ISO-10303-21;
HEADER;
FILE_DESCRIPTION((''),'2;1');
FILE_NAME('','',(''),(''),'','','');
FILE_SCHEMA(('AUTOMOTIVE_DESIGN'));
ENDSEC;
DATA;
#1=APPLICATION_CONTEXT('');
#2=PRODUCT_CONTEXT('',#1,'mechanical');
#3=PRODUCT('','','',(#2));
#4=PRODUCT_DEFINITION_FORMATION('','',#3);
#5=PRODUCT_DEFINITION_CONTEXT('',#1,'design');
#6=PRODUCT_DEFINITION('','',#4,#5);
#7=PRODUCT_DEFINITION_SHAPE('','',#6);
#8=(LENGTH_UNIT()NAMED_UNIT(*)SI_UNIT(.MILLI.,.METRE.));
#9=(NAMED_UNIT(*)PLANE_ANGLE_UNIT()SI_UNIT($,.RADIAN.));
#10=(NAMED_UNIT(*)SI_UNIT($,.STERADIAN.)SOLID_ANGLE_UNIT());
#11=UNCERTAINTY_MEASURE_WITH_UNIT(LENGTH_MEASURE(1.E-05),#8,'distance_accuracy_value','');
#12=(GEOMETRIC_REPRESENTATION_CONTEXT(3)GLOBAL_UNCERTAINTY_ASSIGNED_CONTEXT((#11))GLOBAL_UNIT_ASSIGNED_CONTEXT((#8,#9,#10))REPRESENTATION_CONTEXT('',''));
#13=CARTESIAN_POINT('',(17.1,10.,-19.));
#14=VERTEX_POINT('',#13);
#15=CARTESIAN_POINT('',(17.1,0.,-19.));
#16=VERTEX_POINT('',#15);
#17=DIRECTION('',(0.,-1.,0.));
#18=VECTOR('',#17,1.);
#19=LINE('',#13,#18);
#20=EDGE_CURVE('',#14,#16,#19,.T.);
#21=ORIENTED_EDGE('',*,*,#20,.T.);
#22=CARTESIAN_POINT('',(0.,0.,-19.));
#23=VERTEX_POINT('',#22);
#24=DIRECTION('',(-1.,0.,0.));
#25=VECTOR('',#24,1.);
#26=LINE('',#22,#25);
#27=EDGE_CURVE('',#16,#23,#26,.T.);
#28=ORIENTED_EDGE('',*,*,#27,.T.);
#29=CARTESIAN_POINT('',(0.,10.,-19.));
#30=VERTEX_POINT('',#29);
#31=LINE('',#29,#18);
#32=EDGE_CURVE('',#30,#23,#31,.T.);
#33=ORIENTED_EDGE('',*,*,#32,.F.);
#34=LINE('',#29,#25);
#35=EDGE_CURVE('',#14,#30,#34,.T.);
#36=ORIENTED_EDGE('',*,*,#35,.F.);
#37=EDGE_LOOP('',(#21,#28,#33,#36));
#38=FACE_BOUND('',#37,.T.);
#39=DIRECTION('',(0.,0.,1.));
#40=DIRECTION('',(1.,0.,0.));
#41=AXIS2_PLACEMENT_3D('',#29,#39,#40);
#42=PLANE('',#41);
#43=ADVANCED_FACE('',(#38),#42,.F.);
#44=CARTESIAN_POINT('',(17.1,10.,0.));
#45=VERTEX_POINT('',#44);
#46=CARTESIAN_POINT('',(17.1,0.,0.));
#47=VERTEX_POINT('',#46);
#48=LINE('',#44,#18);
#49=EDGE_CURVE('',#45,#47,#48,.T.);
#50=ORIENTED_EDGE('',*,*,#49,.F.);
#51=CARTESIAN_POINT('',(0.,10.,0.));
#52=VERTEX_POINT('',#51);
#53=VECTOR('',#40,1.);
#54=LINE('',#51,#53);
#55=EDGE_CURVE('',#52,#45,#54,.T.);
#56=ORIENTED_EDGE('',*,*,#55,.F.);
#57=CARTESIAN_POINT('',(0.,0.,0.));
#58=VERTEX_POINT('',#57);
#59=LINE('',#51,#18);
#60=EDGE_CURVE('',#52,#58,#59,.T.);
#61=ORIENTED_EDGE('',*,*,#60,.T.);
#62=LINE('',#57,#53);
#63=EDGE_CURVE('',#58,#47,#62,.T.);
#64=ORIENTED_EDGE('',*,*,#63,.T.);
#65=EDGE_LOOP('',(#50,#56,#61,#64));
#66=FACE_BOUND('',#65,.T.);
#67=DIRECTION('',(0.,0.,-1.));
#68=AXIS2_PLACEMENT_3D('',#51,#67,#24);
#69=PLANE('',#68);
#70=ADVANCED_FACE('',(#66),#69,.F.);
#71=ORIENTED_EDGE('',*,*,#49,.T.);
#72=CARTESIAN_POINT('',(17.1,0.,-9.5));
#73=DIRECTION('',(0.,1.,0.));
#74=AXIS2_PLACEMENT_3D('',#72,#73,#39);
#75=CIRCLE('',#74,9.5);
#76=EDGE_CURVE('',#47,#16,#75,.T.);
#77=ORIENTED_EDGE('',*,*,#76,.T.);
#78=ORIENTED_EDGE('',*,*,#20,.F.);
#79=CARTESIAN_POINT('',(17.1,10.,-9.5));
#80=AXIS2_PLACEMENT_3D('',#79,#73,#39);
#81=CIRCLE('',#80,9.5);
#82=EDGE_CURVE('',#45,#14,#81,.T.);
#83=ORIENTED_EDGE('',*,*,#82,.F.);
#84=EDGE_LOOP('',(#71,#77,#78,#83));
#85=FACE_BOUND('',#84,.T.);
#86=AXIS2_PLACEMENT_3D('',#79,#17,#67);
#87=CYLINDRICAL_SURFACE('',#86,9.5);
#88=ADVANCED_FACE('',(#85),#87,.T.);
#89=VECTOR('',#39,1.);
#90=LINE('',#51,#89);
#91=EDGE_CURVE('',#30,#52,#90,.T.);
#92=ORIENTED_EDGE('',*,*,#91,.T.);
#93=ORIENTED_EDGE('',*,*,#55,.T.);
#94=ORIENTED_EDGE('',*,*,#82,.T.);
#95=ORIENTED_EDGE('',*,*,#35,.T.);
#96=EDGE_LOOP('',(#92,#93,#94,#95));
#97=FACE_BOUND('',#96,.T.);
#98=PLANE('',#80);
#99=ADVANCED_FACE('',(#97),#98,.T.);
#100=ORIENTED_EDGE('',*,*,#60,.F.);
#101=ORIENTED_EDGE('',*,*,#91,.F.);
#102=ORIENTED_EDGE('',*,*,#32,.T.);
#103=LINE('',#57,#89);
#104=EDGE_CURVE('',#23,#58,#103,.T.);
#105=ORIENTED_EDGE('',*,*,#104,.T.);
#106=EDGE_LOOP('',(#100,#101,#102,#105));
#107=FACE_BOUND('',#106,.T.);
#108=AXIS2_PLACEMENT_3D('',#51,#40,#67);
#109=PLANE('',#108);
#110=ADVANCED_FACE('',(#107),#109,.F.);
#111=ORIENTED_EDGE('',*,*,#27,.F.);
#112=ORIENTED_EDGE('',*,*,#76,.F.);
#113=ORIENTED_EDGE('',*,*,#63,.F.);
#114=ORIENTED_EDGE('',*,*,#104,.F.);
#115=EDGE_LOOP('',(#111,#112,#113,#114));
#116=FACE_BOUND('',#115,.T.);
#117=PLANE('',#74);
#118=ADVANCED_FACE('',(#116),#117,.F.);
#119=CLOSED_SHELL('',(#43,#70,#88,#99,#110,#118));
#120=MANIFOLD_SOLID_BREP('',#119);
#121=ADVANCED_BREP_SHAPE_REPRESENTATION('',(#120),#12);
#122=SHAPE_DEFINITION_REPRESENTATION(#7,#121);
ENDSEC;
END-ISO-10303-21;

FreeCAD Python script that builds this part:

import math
import FreeCAD as App
import Part
import Sketcher

V = App.Vector
Q = App.Units.Quantity

doc = App.newDocument("Part")
params = doc.addObject("Spreadsheet::Sheet", "Params")
for row, (alias, value) in enumerate([
    ("sketch1_radius", "9.5 mm"),
    ("sketch1_width", "17.1 mm"),
    ("pad1_length", "10 mm"),
], start=1):
    params.set(f"A{row}", alias)
    params.set(f"B{row}", "=" + value)
    params.setAlias(f"B{row}", alias)

body = doc.addObject("PartDesign::Body", "Body")

sketch1 = body.newObject("Sketcher::SketchObject", "Sketch")
sketch1.AttachmentSupport = (doc.getObject("XZ_Plane"), [""])
sketch1.MapMode = "FlatFace"
sketch1.addGeometry([
    Part.LineSegment(V(0, 0, 0), V(17.1, 0, 0)),
    Part.ArcOfCircle(Part.Circle(V(17.1, -9.5, 0), V(0, 0, 1), 9.5), math.radians(-90), math.radians(90)),
    Part.LineSegment(V(17.1, -19, 0), V(0, -19, 0)),
    Part.LineSegment(V(0, -19, 0), V(0, 0, 0)),
], False)
sketch1.addConstraint([
    Sketcher.Constraint("Tangent", 0, 2, 1, 2),
    Sketcher.Constraint("Tangent", 1, 1, 2, 1),
    Sketcher.Constraint("Coincident", 2, 2, 3, 1),
    Sketcher.Constraint("Coincident", 3, 2, 0, 1),
    Sketcher.Constraint("Horizontal", 0),
    Sketcher.Constraint("Horizontal", 2),
    Sketcher.Constraint("Vertical", 3),
    Sketcher.Constraint("Coincident", 3, 2, -1, 1),
    Sketcher.Constraint("Radius", 1, Q("9.5 mm")),
    Sketcher.Constraint("DistanceX", 0, 1, 0, 2, Q("17.1 mm")),
])
sketch1.setExpression("Constraints[8]", "Params.sketch1_radius")
sketch1.setExpression("Constraints[9]", "Params.sketch1_width")
pad1 = body.newObject("PartDesign::Pad", "Pad")
pad1.Profile = sketch1
pad1.setExpression("Length", "Params.pad1_length")
pad1.Reversed = True

doc.recompute()
